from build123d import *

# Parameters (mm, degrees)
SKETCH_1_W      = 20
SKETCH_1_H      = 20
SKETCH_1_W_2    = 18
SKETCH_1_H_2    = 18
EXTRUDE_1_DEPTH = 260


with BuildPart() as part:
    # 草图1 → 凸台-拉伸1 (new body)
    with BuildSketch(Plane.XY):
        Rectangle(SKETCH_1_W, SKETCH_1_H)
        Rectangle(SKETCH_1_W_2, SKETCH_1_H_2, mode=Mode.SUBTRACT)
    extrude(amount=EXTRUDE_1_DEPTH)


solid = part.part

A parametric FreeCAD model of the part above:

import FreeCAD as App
import Part
import Sketcher
from FreeCAD import Vector

doc = App.newDocument("Part")
params = doc.addObject("Spreadsheet::Sheet", "Params")
for row, (alias, value) in enumerate([
    ("sketch1_width", "20 mm"),
    ("sketch1_width2", "18 mm"),
    ("pad1_length", "260 mm"),
], start=1):
    params.set(f"A{row}", alias)
    params.set(f"B{row}", "=" + value)
    params.setAlias(f"B{row}", alias)

body = doc.addObject("PartDesign::Body", "Body")

sketch1 = doc.addObject("Sketcher::SketchObject", "Sketch")
body.addObject(sketch1)
sketch1.AttachmentSupport = (doc.XY_Plane, [""])
sketch1.MapMode = "FlatFace"
sketch1.addGeometry(Part.LineSegment(Vector(-10, 10, 0), Vector(-10, -10, 0)), False)
sketch1.addGeometry(Part.LineSegment(Vector(-10, -10, 0), Vector(10, -10, 0)), False)
sketch1.addGeometry(Part.LineSegment(Vector(10, -10, 0), Vector(10, 10, 0)), False)
sketch1.addGeometry(Part.LineSegment(Vector(10, 10, 0), Vector(-10, 10, 0)), False)
sketch1.addGeometry(Part.LineSegment(Vector(9, -9, 0), Vector(-9, -9, 0)), False)
sketch1.addGeometry(Part.LineSegment(Vector(-9, -9, 0), Vector(-9, 9, 0)), False)
sketch1.addGeometry(Part.LineSegment(Vector(-9, 9, 0), Vector(9, 9, 0)), False)
sketch1.addGeometry(Part.LineSegment(Vector(9, 9, 0), Vector(9, -9, 0)), False)
sketch1.addConstraint(Sketcher.Constraint("Coincident", 0, 2, 1, 1))
sketch1.addConstraint(Sketcher.Constraint("Coincident", 1, 2, 2, 1))
sketch1.addConstraint(Sketcher.Constraint("Coincident", 2, 2, 3, 1))
sketch1.addConstraint(Sketcher.Constraint("Coincident", 3, 2, 0, 1))
sketch1.addConstraint(Sketcher.Constraint("Coincident", 4, 2, 5, 1))
sketch1.addConstraint(Sketcher.Constraint("Coincident", 5, 2, 6, 1))
sketch1.addConstraint(Sketcher.Constraint("Coincident", 6, 2, 7, 1))
sketch1.addConstraint(Sketcher.Constraint("Coincident", 7, 2, 4, 1))
sketch1.addConstraint(Sketcher.Constraint("Vertical", 0))
sketch1.addConstraint(Sketcher.Constraint("Horizontal", 1))
sketch1.addConstraint(Sketcher.Constraint("Vertical", 2))
sketch1.addConstraint(Sketcher.Constraint("Horizontal", 3))
sketch1.addConstraint(Sketcher.Constraint("Horizontal", 4))
sketch1.addConstraint(Sketcher.Constraint("Vertical", 5))
sketch1.addConstraint(Sketcher.Constraint("Horizontal", 6))
sketch1.addConstraint(Sketcher.Constraint("Vertical", 7))
sketch1.addConstraint(Sketcher.Constraint("Symmetric", 0, 2, 2, 2, -1, 1))
sketch1.addConstraint(Sketcher.Constraint("Symmetric", 4, 2, 6, 2, -1, 1))
sketch1.addConstraint(Sketcher.Constraint("Equal", 3, 0))
sketch1.addConstraint(Sketcher.Constraint("Equal", 6, 5))
sketch1.addConstraint(Sketcher.Constraint("DistanceX", 1, 1, 1, 2, 20.0))
sketch1.addConstraint(Sketcher.Constraint("DistanceX", 4, 2, 4, 1, 18.0))
sketch1.setExpression("Constraints[20]", "Params.sketch1_width")
sketch1.setExpression("Constraints[21]", "Params.sketch1_width2")
pad1 = doc.addObject("PartDesign::Pad", "Pad")
body.addObject(pad1)
pad1.Profile = sketch1
pad1.setExpression("Length", "Params.pad1_length")

doc.recompute()
